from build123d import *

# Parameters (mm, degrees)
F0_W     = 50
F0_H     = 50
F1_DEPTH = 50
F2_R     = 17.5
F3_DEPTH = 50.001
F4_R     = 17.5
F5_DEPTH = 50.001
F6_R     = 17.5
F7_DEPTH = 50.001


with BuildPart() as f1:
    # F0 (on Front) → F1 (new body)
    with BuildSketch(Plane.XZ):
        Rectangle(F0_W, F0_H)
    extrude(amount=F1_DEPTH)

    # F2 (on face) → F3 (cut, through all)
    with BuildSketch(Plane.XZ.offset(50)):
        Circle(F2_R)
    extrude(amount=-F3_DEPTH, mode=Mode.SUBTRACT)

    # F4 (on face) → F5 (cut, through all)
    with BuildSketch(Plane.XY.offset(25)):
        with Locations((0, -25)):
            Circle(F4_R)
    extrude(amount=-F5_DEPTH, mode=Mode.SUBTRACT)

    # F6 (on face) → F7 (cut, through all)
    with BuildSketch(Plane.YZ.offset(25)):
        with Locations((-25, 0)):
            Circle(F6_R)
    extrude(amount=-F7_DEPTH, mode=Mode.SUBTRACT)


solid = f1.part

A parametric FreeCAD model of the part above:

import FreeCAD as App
import Part
import Sketcher

doc = App.newDocument("Part")
body = doc.addObject("PartDesign::Body", "Body")

# Sketch on XZ plane
sketch1 = doc.addObject("Sketcher::SketchObject", "Sketch")
body.addObject(sketch1)
sketch1.AttachmentSupport = (doc.XZ_Plane, [""])
sketch1.MapMode = "FlatFace"
sketch1.addGeometry(Part.LineSegment(App.Vector(-25, 25, 0), App.Vector(-25, -25, 0)), False)
sketch1.addGeometry(Part.LineSegment(App.Vector(-25, -25, 0), App.Vector(25, -25, 0)), False)
sketch1.addGeometry(Part.LineSegment(App.Vector(25, -25, 0), App.Vector(25, 25, 0)), False)
sketch1.addGeometry(Part.LineSegment(App.Vector(25, 25, 0), App.Vector(-25, 25, 0)), False)
sketch1.addConstraint(Sketcher.Constraint("Coincident", 0, 2, 1, 1))
sketch1.addConstraint(Sketcher.Constraint("Coincident", 1, 2, 2, 1))
sketch1.addConstraint(Sketcher.Constraint("Coincident", 2, 2, 3, 1))
sketch1.addConstraint(Sketcher.Constraint("Coincident", 3, 2, 0, 1))
sketch1.addConstraint(Sketcher.Constraint("Vertical", 0))
sketch1.addConstraint(Sketcher.Constraint("Horizontal", 1))
sketch1.addConstraint(Sketcher.Constraint("Vertical", 2))
sketch1.addConstraint(Sketcher.Constraint("Horizontal", 3))
sketch1.addConstraint(Sketcher.Constraint("Symmetric", 0, 2, 2, 2, -1, 1))
sketch1.addConstraint(Sketcher.Constraint("Equal", 3, 0))
sketch1.addConstraint(Sketcher.Constraint("DistanceX", 1, 1, 1, 2, 50.0))
pad1 = doc.addObject("PartDesign::Pad", "Pad")
body.addObject(pad1)
pad1.Profile = sketch1
pad1.Length = 50

# Sketch on XZ plane
sketch2 = doc.addObject("Sketcher::SketchObject", "Sketch001")
body.addObject(sketch2)
sketch2.AttachmentSupport = (doc.XZ_Plane, [""])
sketch2.MapMode = "FlatFace"
sketch2.AttachmentOffset = App.Placement(App.Vector(0, 0, 50), App.Rotation())
sketch2.addGeometry(Part.Circle(App.Vector(0, 0, 0), App.Vector(0, 0, 1), 18), False)
sketch2.addConstraint(Sketcher.Constraint("Coincident", 0, 3, -1, 1))
sketch2.addConstraint(Sketcher.Constraint("Diameter", 0, 35.0))
pocket1 = doc.addObject("PartDesign::Pocket", "Pocket")
body.addObject(pocket1)
pocket1.Profile = sketch2
pocket1.Type = "ThroughAll"

# Sketch on XY plane
sketch3 = doc.addObject("Sketcher::SketchObject", "Sketch002")
body.addObject(sketch3)
sketch3.AttachmentSupport = (doc.XY_Plane, [""])
sketch3.MapMode = "FlatFace"
sketch3.AttachmentOffset = App.Placement(App.Vector(0, 0, 25), App.Rotation())
sketch3.addGeometry(Part.Circle(App.Vector(0, -25, 0), App.Vector(0, 0, 1), 18), False)
sketch3.addConstraint(Sketcher.Constraint("PointOnObject", 0, 3, -2))
sketch3.addConstraint(Sketcher.Constraint("Diameter", 0, 35.0))
sketch3.addConstraint(Sketcher.Constraint("DistanceY", 0, 3, -1, 1, 25.0))
pocket2 = doc.addObject("PartDesign::Pocket", "Pocket001")
body.addObject(pocket2)
pocket2.Profile = sketch3
pocket2.Type = "ThroughAll"

# Sketch on YZ plane
sketch4 = doc.addObject("Sketcher::SketchObject", "Sketch003")
body.addObject(sketch4)
sketch4.AttachmentSupport = (doc.YZ_Plane, [""])
sketch4.MapMode = "FlatFace"
sketch4.AttachmentOffset = App.Placement(App.Vector(0, 0, 25), App.Rotation())
sketch4.addGeometry(Part.Circle(App.Vector(-25, 0, 0), App.Vector(0, 0, 1), 18), False)
sketch4.addConstraint(Sketcher.Constraint("PointOnObject", 0, 3, -1))
sketch4.addConstraint(Sketcher.Constraint("Diameter", 0, 35.0))
sketch4.addConstraint(Sketcher.Constraint("DistanceX", 0, 3, -1, 1, 25.0))
pocket3 = doc.addObject("PartDesign::Pocket", "Pocket002")
body.addObject(pocket3)
pocket3.Profile = sketch4
pocket3.Type = "ThroughAll"

doc.recompute()
